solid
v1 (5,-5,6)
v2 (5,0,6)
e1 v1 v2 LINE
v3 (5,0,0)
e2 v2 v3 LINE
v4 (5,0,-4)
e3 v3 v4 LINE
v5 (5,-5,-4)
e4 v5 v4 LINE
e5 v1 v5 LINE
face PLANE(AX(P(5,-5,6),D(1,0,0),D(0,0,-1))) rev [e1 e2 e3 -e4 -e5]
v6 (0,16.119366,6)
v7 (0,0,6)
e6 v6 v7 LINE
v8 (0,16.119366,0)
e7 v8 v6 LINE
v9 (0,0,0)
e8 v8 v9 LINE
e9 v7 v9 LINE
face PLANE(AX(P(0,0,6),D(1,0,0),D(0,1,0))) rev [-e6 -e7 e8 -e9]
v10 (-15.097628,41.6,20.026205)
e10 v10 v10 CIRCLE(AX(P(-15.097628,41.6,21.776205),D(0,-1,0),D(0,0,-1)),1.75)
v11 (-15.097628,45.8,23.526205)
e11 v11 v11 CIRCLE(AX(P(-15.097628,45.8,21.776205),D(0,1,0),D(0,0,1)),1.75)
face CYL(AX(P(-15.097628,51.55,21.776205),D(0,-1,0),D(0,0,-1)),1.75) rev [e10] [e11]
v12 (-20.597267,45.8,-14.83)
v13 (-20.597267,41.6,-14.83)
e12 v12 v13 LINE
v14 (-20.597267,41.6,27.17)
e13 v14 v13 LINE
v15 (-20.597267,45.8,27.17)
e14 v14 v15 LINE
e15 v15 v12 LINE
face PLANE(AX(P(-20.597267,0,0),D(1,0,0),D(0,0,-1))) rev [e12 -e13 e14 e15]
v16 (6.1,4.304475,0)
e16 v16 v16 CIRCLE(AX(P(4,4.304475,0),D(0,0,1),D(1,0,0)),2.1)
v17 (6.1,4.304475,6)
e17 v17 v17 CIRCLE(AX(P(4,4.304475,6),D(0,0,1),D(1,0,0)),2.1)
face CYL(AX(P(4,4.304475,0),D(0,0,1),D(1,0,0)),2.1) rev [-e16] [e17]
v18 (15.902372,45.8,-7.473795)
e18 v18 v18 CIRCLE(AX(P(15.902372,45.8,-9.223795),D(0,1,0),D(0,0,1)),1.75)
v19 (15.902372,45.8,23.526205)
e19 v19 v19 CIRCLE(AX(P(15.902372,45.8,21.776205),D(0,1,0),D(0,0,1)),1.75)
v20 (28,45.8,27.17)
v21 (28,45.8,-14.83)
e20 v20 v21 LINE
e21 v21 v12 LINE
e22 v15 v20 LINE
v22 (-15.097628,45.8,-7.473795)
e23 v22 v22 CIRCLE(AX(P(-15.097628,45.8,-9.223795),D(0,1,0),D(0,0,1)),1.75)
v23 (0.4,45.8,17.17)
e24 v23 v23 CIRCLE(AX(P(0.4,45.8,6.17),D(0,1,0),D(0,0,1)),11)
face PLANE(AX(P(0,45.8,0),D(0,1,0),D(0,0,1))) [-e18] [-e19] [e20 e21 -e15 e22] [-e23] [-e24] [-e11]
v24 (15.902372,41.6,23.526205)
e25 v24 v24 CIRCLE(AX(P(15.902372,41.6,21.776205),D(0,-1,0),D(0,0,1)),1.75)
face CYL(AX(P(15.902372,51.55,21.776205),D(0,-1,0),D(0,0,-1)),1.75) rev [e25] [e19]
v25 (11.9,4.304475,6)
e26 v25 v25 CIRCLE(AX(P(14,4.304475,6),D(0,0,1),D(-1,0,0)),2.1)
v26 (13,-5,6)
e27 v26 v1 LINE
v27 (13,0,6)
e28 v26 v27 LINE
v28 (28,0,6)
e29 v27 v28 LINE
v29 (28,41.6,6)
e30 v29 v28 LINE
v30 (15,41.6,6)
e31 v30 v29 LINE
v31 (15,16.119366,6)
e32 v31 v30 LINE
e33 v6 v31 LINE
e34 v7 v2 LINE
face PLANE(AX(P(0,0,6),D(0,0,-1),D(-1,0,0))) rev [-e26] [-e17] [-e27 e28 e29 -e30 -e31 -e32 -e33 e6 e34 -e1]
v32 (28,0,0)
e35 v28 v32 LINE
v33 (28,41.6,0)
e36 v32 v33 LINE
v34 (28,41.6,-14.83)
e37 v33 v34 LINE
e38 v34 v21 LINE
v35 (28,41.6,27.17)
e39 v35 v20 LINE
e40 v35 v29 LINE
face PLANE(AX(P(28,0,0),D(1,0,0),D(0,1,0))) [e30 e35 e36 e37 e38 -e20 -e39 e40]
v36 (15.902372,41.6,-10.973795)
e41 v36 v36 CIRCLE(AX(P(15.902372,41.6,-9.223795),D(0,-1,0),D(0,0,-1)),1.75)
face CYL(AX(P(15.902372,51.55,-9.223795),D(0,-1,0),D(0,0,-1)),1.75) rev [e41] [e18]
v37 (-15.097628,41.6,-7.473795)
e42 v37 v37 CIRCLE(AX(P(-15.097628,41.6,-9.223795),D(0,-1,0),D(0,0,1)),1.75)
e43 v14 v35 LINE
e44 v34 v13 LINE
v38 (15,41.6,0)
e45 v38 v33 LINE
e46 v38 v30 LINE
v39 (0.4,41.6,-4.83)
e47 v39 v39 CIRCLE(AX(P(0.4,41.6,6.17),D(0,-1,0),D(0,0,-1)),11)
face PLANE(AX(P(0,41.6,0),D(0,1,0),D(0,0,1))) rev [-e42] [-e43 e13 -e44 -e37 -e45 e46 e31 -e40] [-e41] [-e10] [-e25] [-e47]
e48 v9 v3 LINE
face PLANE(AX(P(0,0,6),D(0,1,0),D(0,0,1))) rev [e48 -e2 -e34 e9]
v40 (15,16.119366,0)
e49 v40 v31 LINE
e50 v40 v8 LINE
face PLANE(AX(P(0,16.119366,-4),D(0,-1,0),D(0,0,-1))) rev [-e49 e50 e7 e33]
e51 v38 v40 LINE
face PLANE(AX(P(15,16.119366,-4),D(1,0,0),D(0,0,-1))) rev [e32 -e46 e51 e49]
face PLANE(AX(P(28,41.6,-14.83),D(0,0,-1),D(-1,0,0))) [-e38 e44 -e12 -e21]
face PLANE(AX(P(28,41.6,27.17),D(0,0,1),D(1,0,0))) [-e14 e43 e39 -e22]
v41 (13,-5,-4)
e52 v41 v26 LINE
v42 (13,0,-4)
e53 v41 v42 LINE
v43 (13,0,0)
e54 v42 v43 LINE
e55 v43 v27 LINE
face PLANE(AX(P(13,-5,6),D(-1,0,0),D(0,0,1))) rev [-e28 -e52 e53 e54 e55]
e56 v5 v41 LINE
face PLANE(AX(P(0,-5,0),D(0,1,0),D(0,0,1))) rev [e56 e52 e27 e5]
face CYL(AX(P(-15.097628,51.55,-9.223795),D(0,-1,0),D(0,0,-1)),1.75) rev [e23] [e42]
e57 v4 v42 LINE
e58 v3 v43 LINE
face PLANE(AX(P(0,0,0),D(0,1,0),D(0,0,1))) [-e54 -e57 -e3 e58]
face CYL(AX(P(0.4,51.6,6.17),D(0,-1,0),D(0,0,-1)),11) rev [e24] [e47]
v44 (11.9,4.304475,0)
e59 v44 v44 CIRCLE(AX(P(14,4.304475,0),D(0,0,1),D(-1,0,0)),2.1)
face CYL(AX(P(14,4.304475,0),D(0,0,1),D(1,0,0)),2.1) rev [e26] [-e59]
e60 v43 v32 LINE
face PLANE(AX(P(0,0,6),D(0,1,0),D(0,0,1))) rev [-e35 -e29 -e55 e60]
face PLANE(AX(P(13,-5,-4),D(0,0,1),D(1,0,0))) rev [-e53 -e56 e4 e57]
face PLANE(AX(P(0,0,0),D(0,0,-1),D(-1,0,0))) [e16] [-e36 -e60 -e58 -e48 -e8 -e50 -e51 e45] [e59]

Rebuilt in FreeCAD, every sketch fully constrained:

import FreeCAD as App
import Part
import Sketcher
from FreeCAD import Vector
Q = App.Units.Quantity


def add_polygon(sketch, points):
    """Adds a closed chain of lines whose ends are joined by coincident constraints."""
    first, n = sketch.GeometryCount, len(points)
    for a, b in zip(points, points[1:] + points[:1]):
        sketch.addGeometry(Part.LineSegment(App.Vector(*a, 0), App.Vector(*b, 0)), False)
    for i in range(n):
        sketch.addConstraint(Sketcher.Constraint("Coincident", first + i, 2, first + (i + 1) % n, 1))

doc = App.newDocument("Part")
params = doc.addObject("Spreadsheet::Sheet", "Params")
for row, (alias, value) in enumerate([
    ("sketch1_width", "18 mm"),
    ("sketch1_height", "50 mm"),
    ("pad1_length", "6 mm"),
    ("sketch2_diameter", "4.2 mm"),
    ("pocket1_length", "6 mm"),
    ("sketch3_width", "8 mm"),
    ("sketch3_height", "10 mm"),
    ("pad2_length", "5 mm"),
    ("sketch4_width", "50 mm"),
    ("sketch4_height", "6 mm"),
    ("pad3_length", "10 mm"),
    ("sketch5_width", "15 mm"),
    ("pocket2_length", "10 mm"),
    ("pocket3_length", "4.2 mm"),
    ("sketch7_height", "42 mm"),
    ("pad4_length", "4.2 mm"),
    ("pocket4_length", "9.95 mm"),
    ("sketch9_diameter", "3.5 mm"),
    ("pocket5_length", "9.95 mm"),
    ("sketch10_diameter", "22 mm"),
    ("pocket6_length", "10 mm"),
], start=1):
    params.set(f"A{row}", alias)
    params.set(f"B{row}", "=" + value)
    params.setAlias(f"B{row}", alias)

body = doc.addObject("PartDesign::Body", "Body")

# Sketch on XY plane
sketch1 = body.newObject("Sketcher::SketchObject", "Sketch")
sketch1.AttachmentSupport = (doc.getObject("XY_Plane"), [""])
sketch1.MapMode = "FlatFace"
add_polygon(sketch1, [(0, 50), (0, 0), (18, 0), (18, 50)])  # lines 0-3
sketch1.addConstraint([
    Sketcher.Constraint("Vertical", 0),
    Sketcher.Constraint("Horizontal", 1),
    Sketcher.Constraint("Vertical", 2),
    Sketcher.Constraint("Horizontal", 3),
    Sketcher.Constraint("Coincident", 0, 2, -1, 1),
    Sketcher.Constraint("DistanceX", 1, 1, 1, 2, Q("18 mm")),
    Sketcher.Constraint("DistanceY", 0, 2, 0, 1, Q("50 mm")),
])
sketch1.setExpression("Constraints[9]", "Params.sketch1_width")
sketch1.setExpression("Constraints[10]", "Params.sketch1_height")
pad1 = body.newObject("PartDesign::Pad", "Pad")
pad1.Profile = sketch1
pad1.setExpression("Length", "Params.pad1_length")

# Sketch on XY plane
sketch2 = body.newObject("Sketcher::SketchObject", "Sketch001")
sketch2.AttachmentSupport = (doc.getObject("XY_Plane"), [""])
sketch2.MapMode = "FlatFace"
sketch2.AttachmentOffset = App.Placement(Vector(0, 0, 6), App.Rotation())
sketch2.addGeometry([
    Part.Circle(Vector(4, 4.3, 0), Vector(0, 0, 1), 2.1),
    Part.Circle(Vector(14, 4.3, 0), Vector(0, 0, 1), 2.1),
], False)
sketch2.addConstraint([
    Sketcher.Constraint("Equal", 0, 1),
    Sketcher.Constraint("Horizontal", 0, 3, 1, 3),
    Sketcher.Constraint("Diameter", 0, Q("4.2 mm")),
    Sketcher.Constraint("DistanceX", -1, 1, 0, 3, Q("4 mm")),
    Sketcher.Constraint("DistanceX", -1, 1, 1, 3, Q("14 mm")),
    Sketcher.Constraint("DistanceY", -1, 1, 0, 3, Q("4.304475 mm")),
])
sketch2.setExpression("Constraints[2]", "Params.sketch2_diameter")
pocket1 = body.newObject("PartDesign::Pocket", "Pocket")
pocket1.Profile = sketch2
pocket1.setExpression("Length", "Params.pocket1_length")

# Sketch on XZ plane
sketch3 = body.newObject("Sketcher::SketchObject", "Sketch002")
sketch3.AttachmentSupport = (doc.getObject("XZ_Plane"), [""])
sketch3.MapMode = "FlatFace"
add_polygon(sketch3, [(5, 6), (5, -4), (13, -4), (13, 6)])  # lines 0-3
sketch3.addConstraint([
    Sketcher.Constraint("Vertical", 0),
    Sketcher.Constraint("Horizontal", 1),
    Sketcher.Constraint("Vertical", 2),
    Sketcher.Constraint("Horizontal", 3),
    Sketcher.Constraint("DistanceX", 1, 1, 1, 2, Q("8 mm")),
    Sketcher.Constraint("DistanceY", 0, 2, 0, 1, Q("10 mm")),
    Sketcher.Constraint("DistanceX", -1, 1, 0, 2, Q("5 mm")),
    Sketcher.Constraint("DistanceY", 0, 2, -1, 1, Q("4 mm")),
])
sketch3.setExpression("Constraints[8]", "Params.sketch3_width")
sketch3.setExpression("Constraints[9]", "Params.sketch3_height")
pad2 = body.newObject("PartDesign::Pad", "Pad001")
pad2.Profile = sketch3
pad2.setExpression("Length", "Params.pad2_length")

# Sketch on YZ plane
sketch4 = body.newObject("Sketcher::SketchObject", "Sketch003")
sketch4.AttachmentSupport = (doc.getObject("YZ_Plane"), [""])
sketch4.MapMode = "FlatFace"
sketch4.AttachmentOffset = App.Placement(Vector(0, 0, 18), App.Rotation())
add_polygon(sketch4, [(50, 6), (0, 6), (0, 0), (50, 0)])  # lines 0-3
sketch4.addConstraint([
    Sketcher.Constraint("Horizontal", 0),
    Sketcher.Constraint("Vertical", 1),
    Sketcher.Constraint("Horizontal", 2),
    Sketcher.Constraint("Vertical", 3),
    Sketcher.Constraint("Coincident", 1, 2, -1, 1),
    Sketcher.Constraint("DistanceX", 0, 2, 0, 1, Q("50 mm")),
    Sketcher.Constraint("DistanceY", 1, 2, 1, 1, Q("6 mm")),
])
sketch4.setExpression("Constraints[9]", "Params.sketch4_width")
sketch4.setExpression("Constraints[10]", "Params.sketch4_height")
pad3 = body.newObject("PartDesign::Pad", "Pad002")
pad3.Profile = sketch4
pad3.setExpression("Length", "Params.pad3_length")

# Sketch on XY plane
sketch5 = body.newObject("Sketcher::SketchObject", "Sketch004")
sketch5.AttachmentSupport = (doc.getObject("XY_Plane"), [""])
sketch5.MapMode = "FlatFace"
sketch5.AttachmentOffset = App.Placement(Vector(0, 0, 6), App.Rotation())
add_polygon(sketch5, [(0, 50), (0, 16), (15, 16), (15, 50)])  # lines 0-3
sketch5.addConstraint([
    Sketcher.Constraint("Vertical", 0),
    Sketcher.Constraint("Horizontal", 1),
    Sketcher.Constraint("Vertical", 2),
    Sketcher.Constraint("Horizontal", 3),
    Sketcher.Constraint("PointOnObject", 0, 2, -2),
    Sketcher.Constraint("DistanceX", 1, 1, 1, 2, Q("15 mm")),
    Sketcher.Constraint("DistanceY", -1, 1, 2, 2, Q("50 mm")),
    Sketcher.Constraint("DistanceY", 0, 2, 0, 1, Q("33.880634 mm")),
])
sketch5.setExpression("Constraints[9]", "Params.sketch5_width")
pocket2 = body.newObject("PartDesign::Pocket", "Pocket001")
pocket2.Profile = sketch5
pocket2.setExpression("Length", "Params.pocket2_length")

# Sketch on XZ plane
sketch6 = body.newObject("Sketcher::SketchObject", "Sketch005")
sketch6.AttachmentSupport = (doc.getObject("XZ_Plane"), [""])
sketch6.MapMode = "FlatFace"
sketch6.AttachmentOffset = App.Placement(Vector(0, 0, -50), App.Rotation())
add_polygon(sketch6, [(10, -2), (10, 6), (28, 6), (28, -2)])  # lines 0-3
sketch6.addConstraint([
    Sketcher.Constraint("Vertical", 0),
    Sketcher.Constraint("Horizontal", 1),
    Sketcher.Constraint("Vertical", 2),
    Sketcher.Constraint("Horizontal", 3),
    Sketcher.Constraint("DistanceY", -1, 1, 0, 2, Q("6 mm")),
    Sketcher.Constraint("DistanceX", -1, 1, 1, 2, Q("28 mm")),
    Sketcher.Constraint("DistanceX", 1, 1, 1, 2, Q("18.194641 mm")),
    Sketcher.Constraint("DistanceY", 0, 1, 0, 2, Q("8.438339 mm")),
])
pocket3 = body.newObject("PartDesign::Pocket", "Pocket002")
pocket3.Profile = sketch6
pocket3.setExpression("Length", "Params.pocket3_length")
pocket3.Reversed = True

# Sketch on XZ plane
sketch7 = body.newObject("Sketcher::SketchObject", "Sketch006")
sketch7.AttachmentSupport = (doc.getObject("XZ_Plane"), [""])
sketch7.MapMode = "FlatFace"
sketch7.AttachmentOffset = App.Placement(Vector(0, 0, -45.8), App.Rotation())
add_polygon(sketch7, [(-31, -15), (-31, 27), (28, 27), (28, -15)])  # lines 0-3
sketch7.addConstraint([
    Sketcher.Constraint("Vertical", 0),
    Sketcher.Constraint("Horizontal", 1),
    Sketcher.Constraint("Vertical", 2),
    Sketcher.Constraint("Horizontal", 3),
    Sketcher.Constraint("DistanceY", 0, 1, 0, 2, Q("42 mm")),
    Sketcher.Constraint("DistanceX", -1, 1, 1, 2, Q("28 mm")),
    Sketcher.Constraint("DistanceY", -1, 1, 0, 2, Q("27.17 mm")),
    Sketcher.Constraint("DistanceX", 1, 1, 1, 2, Q("58.547267 mm")),
])
sketch7.setExpression("Constraints[8]", "Params.sketch7_height")
pad4 = body.newObject("PartDesign::Pad", "Pad003")
pad4.Profile = sketch7
pad4.setExpression("Length", "Params.pad4_length")

# Sketch on YZ plane
sketch8 = body.newObject("Sketcher::SketchObject", "Sketch007")
sketch8.AttachmentSupport = (doc.getObject("YZ_Plane"), [""])
sketch8.MapMode = "FlatFace"
sketch8.AttachmentOffset = App.Placement(Vector(0, 0, -30.547267), App.Rotation())
add_polygon(sketch8, [(46, -22), (40, -22), (40, 27), (46, 27)])  # lines 0-3
sketch8.addConstraint([
    Sketcher.Constraint("Horizontal", 0),
    Sketcher.Constraint("Vertical", 1),
    Sketcher.Constraint("Horizontal", 2),
    Sketcher.Constraint("Vertical", 3),
    Sketcher.Constraint("DistanceX", -1, 1, 2, 2, Q("45.8 mm")),
    Sketcher.Constraint("DistanceY", -1, 1, 1, 2, Q("27.17 mm")),
    Sketcher.Constraint("DistanceX", 0, 2, 0, 1, Q("6.051518 mm")),
    Sketcher.Constraint("DistanceY", 1, 1, 1, 2, Q("49.225807 mm")),
])
pocket4 = body.newObject("PartDesign::Pocket", "Pocket003")
pocket4.Profile = sketch8
pocket4.setExpression("Length", "Params.pocket4_length")
pocket4.Reversed = True

# Sketch on XZ plane
sketch9 = body.newObject("Sketcher::SketchObject", "Sketch008")
sketch9.AttachmentSupport = (doc.getObject("XZ_Plane"), [""])
sketch9.MapMode = "FlatFace"
sketch9.AttachmentOffset = App.Placement(Vector(0, 0, -41.6), App.Rotation())
sketch9.addGeometry([
    Part.Circle(Vector(15.9, -9.2, 0), Vector(0, 0, 1), 1.8),
    Part.Circle(Vector(-15.1, -9.2, 0), Vector(0, 0, 1), 1.8),
    Part.Circle(Vector(15.9, 21.8, 0), Vector(0, 0, 1), 1.8),
    Part.Circle(Vector(-15.1, 21.8, 0), Vector(0, 0, 1), 1.8),
], False)
sketch9.addConstraint([
    Sketcher.Constraint("Equal", 0, 1),
    Sketcher.Constraint("Equal", 1, 2),
    Sketcher.Constraint("Equal", 2, 3),
    Sketcher.Constraint("Horizontal", 0, 3, 1, 3),
    Sketcher.Constraint("Horizontal", 2, 3, 3, 3),
    Sketcher.Constraint("Vertical", 0, 3, 2, 3),
    Sketcher.Constraint("Vertical", 1, 3, 3, 3),
    Sketcher.Constraint("Diameter", 0, Q("3.5 mm")),
    Sketcher.Constraint("DistanceX", 1, 3, 0, 3, Q("31 mm")),
    Sketcher.Constraint("DistanceY", 0, 3, 2, 3, Q("31 mm")),
    Sketcher.Constraint("DistanceX", -1, 1, 0, 3, Q("15.902372 mm")),
    Sketcher.Constraint("DistanceY", 0, 3, -1, 1, Q("9.223795 mm")),
])
sketch9.setExpression("Constraints[7]", "Params.sketch9_diameter")
pocket5 = body.newObject("PartDesign::Pocket", "Pocket004")
pocket5.Profile = sketch9
pocket5.setExpression("Length", "Params.pocket5_length")

# Sketch on XZ plane
sketch10 = body.newObject("Sketcher::SketchObject", "Sketch009")
sketch10.AttachmentSupport = (doc.getObject("XZ_Plane"), [""])
sketch10.MapMode = "FlatFace"
sketch10.AttachmentOffset = App.Placement(Vector(0, 0, -41.6), App.Rotation())
sketch10.addGeometry(Part.Circle(Vector(0, 6, 0), Vector(0, 0, 1), 11), False)
sketch10.addConstraint([
    Sketcher.Constraint("Diameter", 0, Q("22 mm")),
    Sketcher.Constraint("DistanceX", -1, 1, 0, 3, Q("0.4 mm")),
    Sketcher.Constraint("DistanceY", -1, 1, 0, 3, Q("6.17 mm")),
])
sketch10.setExpression("Constraints[0]", "Params.sketch10_diameter")
pocket6 = body.newObject("PartDesign::Pocket", "Pocket005")
pocket6.Profile = sketch10
pocket6.setExpression("Length", "Params.pocket6_length")

doc.recompute()
